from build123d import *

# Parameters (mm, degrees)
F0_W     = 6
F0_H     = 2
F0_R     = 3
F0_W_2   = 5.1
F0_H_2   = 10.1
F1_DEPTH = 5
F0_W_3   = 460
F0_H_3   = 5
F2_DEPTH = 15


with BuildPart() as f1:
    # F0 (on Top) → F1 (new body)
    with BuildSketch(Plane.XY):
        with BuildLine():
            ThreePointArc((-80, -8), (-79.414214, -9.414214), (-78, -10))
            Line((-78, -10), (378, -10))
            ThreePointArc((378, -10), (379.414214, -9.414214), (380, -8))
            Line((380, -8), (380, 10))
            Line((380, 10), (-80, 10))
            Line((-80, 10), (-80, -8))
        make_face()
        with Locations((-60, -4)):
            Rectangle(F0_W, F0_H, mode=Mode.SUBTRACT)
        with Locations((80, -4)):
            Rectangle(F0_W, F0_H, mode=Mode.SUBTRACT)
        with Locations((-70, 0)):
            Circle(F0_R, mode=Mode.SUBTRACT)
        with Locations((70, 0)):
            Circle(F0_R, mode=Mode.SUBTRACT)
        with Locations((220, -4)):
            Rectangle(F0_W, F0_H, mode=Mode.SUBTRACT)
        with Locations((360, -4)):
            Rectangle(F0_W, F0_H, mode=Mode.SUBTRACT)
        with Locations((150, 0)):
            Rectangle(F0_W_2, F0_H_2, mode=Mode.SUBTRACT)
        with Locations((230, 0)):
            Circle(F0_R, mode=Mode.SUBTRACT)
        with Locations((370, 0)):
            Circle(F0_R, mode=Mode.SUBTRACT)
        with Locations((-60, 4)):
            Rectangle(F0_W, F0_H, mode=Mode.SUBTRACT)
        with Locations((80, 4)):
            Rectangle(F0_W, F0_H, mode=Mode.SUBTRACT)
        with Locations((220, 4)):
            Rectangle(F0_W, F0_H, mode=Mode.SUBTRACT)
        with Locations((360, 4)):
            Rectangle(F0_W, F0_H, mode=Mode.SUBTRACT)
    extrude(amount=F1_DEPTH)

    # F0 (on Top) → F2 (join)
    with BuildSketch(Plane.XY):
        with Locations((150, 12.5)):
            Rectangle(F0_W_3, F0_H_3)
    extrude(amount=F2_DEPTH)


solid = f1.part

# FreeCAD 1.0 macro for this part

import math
import FreeCAD as App
import Part
import Sketcher
from FreeCAD import Vector
Q = App.Units.Quantity

doc = App.newDocument("Part")
params = doc.addObject("Spreadsheet::Sheet", "Params")
for row, (alias, value) in enumerate([
    ("sketch1_diameter", "6 mm"),
    ("sketch1_radius", "1.999999 mm"),
    ("sketch1_width", "456 mm"),
    ("sketch1_width2", "6 mm"),
    ("sketch1_height", "18 mm"),
    ("pad1_length", "5 mm"),
    ("sketch2_width", "460 mm"),
    ("sketch2_height", "5 mm"),
    ("pad2_length", "15 mm"),
], start=1):
    params.set(f"A{row}", alias)
    params.set(f"B{row}", "=" + value)
    params.setAlias(f"B{row}", alias)

body = doc.addObject("PartDesign::Body", "Body")

sketch1 = body.newObject("Sketcher::SketchObject", "Sketch")
sketch1.AttachmentSupport = (doc.getObject("XY_Plane"), [""])
sketch1.MapMode = "FlatFace"
sketch1.addGeometry(Part.ArcOfCircle(Part.Circle(Vector(-78, -8, 0), Vector(0, 0, 1), 2), math.radians(180), math.radians(270)), False)
sketch1.addGeometry(Part.LineSegment(Vector(-78, -10, 0), Vector(378, -10, 0)), False)
sketch1.addGeometry(Part.ArcOfCircle(Part.Circle(Vector(378, -8, 0), Vector(0, 0, 1), 2), math.radians(-90), math.radians(0)), False)
sketch1.addGeometry(Part.LineSegment(Vector(380, -8, 0), Vector(380, 10, 0)), False)
sketch1.addGeometry(Part.LineSegment(Vector(380, 10, 0), Vector(-80, 10, 0)), False)
sketch1.addGeometry(Part.LineSegment(Vector(-80, 10, 0), Vector(-80, -8, 0)), False)
sketch1.addGeometry(Part.LineSegment(Vector(-57, -5, 0), Vector(-63, -5, 0)), False)
sketch1.addGeometry(Part.LineSegment(Vector(-63, -5, 0), Vector(-63, -3, 0)), False)
sketch1.addGeometry(Part.LineSegment(Vector(-63, -3, 0), Vector(-57, -3, 0)), False)
sketch1.addGeometry(Part.LineSegment(Vector(-57, -3, 0), Vector(-57, -5, 0)), False)
sketch1.addGeometry(Part.LineSegment(Vector(83, -5, 0), Vector(77, -5, 0)), False)
sketch1.addGeometry(Part.LineSegment(Vector(77, -5, 0), Vector(77, -3, 0)), False)
sketch1.addGeometry(Part.LineSegment(Vector(77, -3, 0), Vector(83, -3, 0)), False)
sketch1.addGeometry(Part.LineSegment(Vector(83, -3, 0), Vector(83, -5, 0)), False)
sketch1.addGeometry(Part.LineSegment(Vector(223, -5, 0), Vector(217, -5, 0)), False)
sketch1.addGeometry(Part.LineSegment(Vector(217, -5, 0), Vector(217, -3, 0)), False)
sketch1.addGeometry(Part.LineSegment(Vector(217, -3, 0), Vector(223, -3, 0)), False)
sketch1.addGeometry(Part.LineSegment(Vector(223, -3, 0), Vector(223, -5, 0)), False)
sketch1.addGeometry(Part.LineSegment(Vector(363, -5, 0), Vector(357, -5, 0)), False)
sketch1.addGeometry(Part.LineSegment(Vector(357, -5, 0), Vector(357, -3, 0)), False)
sketch1.addGeometry(Part.LineSegment(Vector(357, -3, 0), Vector(363, -3, 0)), False)
sketch1.addGeometry(Part.LineSegment(Vector(363, -3, 0), Vector(363, -5, 0)), False)
sketch1.addGeometry(Part.Circle(Vector(-70, 0, 0), Vector(0, 0, 1), 3), False)
sketch1.addGeometry(Part.Circle(Vector(70, 0, 0), Vector(0, 0, 1), 3), False)
sketch1.addGeometry(Part.LineSegment(Vector(-57, 3, 0), Vector(-63, 3, 0)), False)
sketch1.addGeometry(Part.LineSegment(Vector(-63, 3, 0), Vector(-63, 5, 0)), False)
sketch1.addGeometry(Part.LineSegment(Vector(-63, 5, 0), Vector(-57, 5, 0)), False)
sketch1.addGeometry(Part.LineSegment(Vector(-57, 5, 0), Vector(-57, 3, 0)), False)
sketch1.addGeometry(Part.LineSegment(Vector(83, 3, 0), Vector(77, 3, 0)), False)
sketch1.addGeometry(Part.LineSegment(Vector(77, 3, 0), Vector(77, 5, 0)), False)
sketch1.addGeometry(Part.LineSegment(Vector(77, 5, 0), Vector(83, 5, 0)), False)
sketch1.addGeometry(Part.LineSegment(Vector(83, 5, 0), Vector(83, 3, 0)), False)
sketch1.addGeometry(Part.LineSegment(Vector(152.6, -5, 0), Vector(147.4, -5, 0)), False)
sketch1.addGeometry(Part.LineSegment(Vector(147.4, -5, 0), Vector(147.4, 5, 0)), False)
sketch1.addGeometry(Part.LineSegment(Vector(147.4, 5, 0), Vector(152.6, 5, 0)), False)
sketch1.addGeometry(Part.LineSegment(Vector(152.6, 5, 0), Vector(152.6, -5, 0)), False)
sketch1.addGeometry(Part.Circle(Vector(230, 0, 0), Vector(0, 0, 1), 3), False)
sketch1.addGeometry(Part.Circle(Vector(370, 0, 0), Vector(0, 0, 1), 3), False)
sketch1.addGeometry(Part.LineSegment(Vector(223, 3, 0), Vector(217, 3, 0)), False)
sketch1.addGeometry(Part.LineSegment(Vector(217, 3, 0), Vector(217, 5, 0)), False)
sketch1.addGeometry(Part.LineSegment(Vector(217, 5, 0), Vector(223, 5, 0)), False)
sketch1.addGeometry(Part.LineSegment(Vector(223, 5, 0), Vector(223, 3, 0)), False)
sketch1.addGeometry(Part.LineSegment(Vector(363, 3, 0), Vector(357, 3, 0)), False)
sketch1.addGeometry(Part.LineSegment(Vector(357, 3, 0), Vector(357, 5, 0)), False)
sketch1.addGeometry(Part.LineSegment(Vector(357, 5, 0), Vector(363, 5, 0)), False)
sketch1.addGeometry(Part.LineSegment(Vector(363, 5, 0), Vector(363, 3, 0)), False)
sketch1.addConstraint(Sketcher.Constraint("Tangent", 0, 2, 1, 1))
sketch1.addConstraint(Sketcher.Constraint("Tangent", 1, 2, 2, 1))
sketch1.addConstraint(Sketcher.Constraint("Tangent", 2, 2, 3, 1))
sketch1.addConstraint(Sketcher.Constraint("Coincident", 3, 2, 4, 1))
sketch1.addConstraint(Sketcher.Constraint("Coincident", 4, 2, 5, 1))
sketch1.addConstraint(Sketcher.Constraint("Tangent", 5, 2, 0, 1))
sketch1.addConstraint(Sketcher.Constraint("Coincident", 6, 2, 7, 1))
sketch1.addConstraint(Sketcher.Constraint("Coincident", 7, 2, 8, 1))
sketch1.addConstraint(Sketcher.Constraint("Coincident", 8, 2, 9, 1))
sketch1.addConstraint(Sketcher.Constraint("Coincident", 9, 2, 6, 1))
sketch1.addConstraint(Sketcher.Constraint("Coincident", 10, 2, 11, 1))
sketch1.addConstraint(Sketcher.Constraint("Coincident", 11, 2, 12, 1))
sketch1.addConstraint(Sketcher.Constraint("Coincident", 12, 2, 13, 1))
sketch1.addConstraint(Sketcher.Constraint("Coincident", 13, 2, 10, 1))
sketch1.addConstraint(Sketcher.Constraint("Coincident", 14, 2, 15, 1))
sketch1.addConstraint(Sketcher.Constraint("Coincident", 15, 2, 16, 1))
sketch1.addConstraint(Sketcher.Constraint("Coincident", 16, 2, 17, 1))
sketch1.addConstraint(Sketcher.Constraint("Coincident", 17, 2, 14, 1))
sketch1.addConstraint(Sketcher.Constraint("Coincident", 18, 2, 19, 1))
sketch1.addConstraint(Sketcher.Constraint("Coincident", 19, 2, 20, 1))
sketch1.addConstraint(Sketcher.Constraint("Coincident", 20, 2, 21, 1))
sketch1.addConstraint(Sketcher.Constraint("Coincident", 21, 2, 18, 1))
sketch1.addConstraint(Sketcher.Constraint("Coincident", 24, 2, 25, 1))
sketch1.addConstraint(Sketcher.Constraint("Coincident", 25, 2, 26, 1))
sketch1.addConstraint(Sketcher.Constraint("Coincident", 26, 2, 27, 1))
sketch1.addConstraint(Sketcher.Constraint("Coincident", 27, 2, 24, 1))
sketch1.addConstraint(Sketcher.Constraint("Coincident", 28, 2, 29, 1))
sketch1.addConstraint(Sketcher.Constraint("Coincident", 29, 2, 30, 1))
sketch1.addConstraint(Sketcher.Constraint("Coincident", 30, 2, 31, 1))
sketch1.addConstraint(Sketcher.Constraint("Coincident", 31, 2, 28, 1))
sketch1.addConstraint(Sketcher.Constraint("Coincident", 32, 2, 33, 1))
sketch1.addConstraint(Sketcher.Constraint("Coincident", 33, 2, 34, 1))
sketch1.addConstraint(Sketcher.Constraint("Coincident", 34, 2, 35, 1))
sketch1.addConstraint(Sketcher.Constraint("Coincident", 35, 2, 32, 1))
sketch1.addConstraint(Sketcher.Constraint("Coincident", 38, 2, 39, 1))
sketch1.addConstraint(Sketcher.Constraint("Coincident", 39, 2, 40, 1))
sketch1.addConstraint(Sketcher.Constraint("Coincident", 40, 2, 41, 1))
sketch1.addConstraint(Sketcher.Constraint("Coincident", 41, 2, 38, 1))
sketch1.addConstraint(Sketcher.Constraint("Coincident", 42, 2, 43, 1))
sketch1.addConstraint(Sketcher.Constraint("Coincident", 43, 2, 44, 1))
sketch1.addConstraint(Sketcher.Constraint("Coincident", 44, 2, 45, 1))
sketch1.addConstraint(Sketcher.Constraint("Coincident", 45, 2, 42, 1))
sketch1.addConstraint(Sketcher.Constraint("Horizontal", 1))
sketch1.addConstraint(Sketcher.Constraint("Vertical", 3))
sketch1.addConstraint(Sketcher.Constraint("Horizontal", 4))
sketch1.addConstraint(Sketcher.Constraint("Vertical", 5))
sketch1.addConstraint(Sketcher.Constraint("Horizontal", 6))
sketch1.addConstraint(Sketcher.Constraint("Vertical", 7))
sketch1.addConstraint(Sketcher.Constraint("Horizontal", 8))
sketch1.addConstraint(Sketcher.Constraint("Vertical", 9))
sketch1.addConstraint(Sketcher.Constraint("Horizontal", 10))
sketch1.addConstraint(Sketcher.Constraint("Vertical", 11))
sketch1.addConstraint(Sketcher.Constraint("Horizontal", 12))
sketch1.addConstraint(Sketcher.Constraint("Vertical", 13))
sketch1.addConstraint(Sketcher.Constraint("Horizontal", 14))
sketch1.addConstraint(Sketcher.Constraint("Vertical", 15))
sketch1.addConstraint(Sketcher.Constraint("Horizontal", 16))
sketch1.addConstraint(Sketcher.Constraint("Vertical", 17))
sketch1.addConstraint(Sketcher.Constraint("Horizontal", 18))
sketch1.addConstraint(Sketcher.Constraint("Vertical", 19))
sketch1.addConstraint(Sketcher.Constraint("Horizontal", 20))
sketch1.addConstraint(Sketcher.Constraint("Vertical", 21))
sketch1.addConstraint(Sketcher.Constraint("Horizontal", 24))
sketch1.addConstraint(Sketcher.Constraint("Vertical", 25))
sketch1.addConstraint(Sketcher.Constraint("Horizontal", 26))
sketch1.addConstraint(Sketcher.Constraint("Vertical", 27))
sketch1.addConstraint(Sketcher.Constraint("Horizontal", 28))
sketch1.addConstraint(Sketcher.Constraint("Vertical", 29))
sketch1.addConstraint(Sketcher.Constraint("Horizontal", 30))
sketch1.addConstraint(Sketcher.Constraint("Vertical", 31))
sketch1.addConstraint(Sketcher.Constraint("Horizontal", 32))
sketch1.addConstraint(Sketcher.Constraint("Vertical", 33))
sketch1.addConstraint(Sketcher.Constraint("Horizontal", 34))
sketch1.addConstraint(Sketcher.Constraint("Vertical", 35))
sketch1.addConstraint(Sketcher.Constraint("Horizontal", 38))
sketch1.addConstraint(Sketcher.Constraint("Vertical", 39))
sketch1.addConstraint(Sketcher.Constraint("Horizontal", 40))
sketch1.addConstraint(Sketcher.Constraint("Vertical", 41))
sketch1.addConstraint(Sketcher.Constraint("Horizontal", 42))
sketch1.addConstraint(Sketcher.Constraint("Vertical", 43))
sketch1.addConstraint(Sketcher.Constraint("Horizontal", 44))
sketch1.addConstraint(Sketcher.Constraint("Vertical", 45))
sketch1.addConstraint(Sketcher.Constraint("Equal", 0, 2))
sketch1.addConstraint(Sketcher.Constraint("Equal", 22, 23))
sketch1.addConstraint(Sketcher.Constraint("Equal", 23, 36))
sketch1.addConstraint(Sketcher.Constraint("Equal", 36, 37))
sketch1.addConstraint(Sketcher.Constraint("Symmetric", 22, 3, 23, 3, -1, 1))
sketch1.addConstraint(Sketcher.Constraint("Symmetric", 7, 2, 24, 2, -1))
sketch1.addConstraint(Sketcher.Constraint("Symmetric", 9, 2, 26, 2, -1))
sketch1.addConstraint(Sketcher.Constraint("Symmetric", 11, 2, 28, 2, -1))
sketch1.addConstraint(Sketcher.Constraint("Symmetric", 13, 2, 30, 2, -1))
sketch1.addConstraint(Sketcher.Constraint("Symmetric", 15, 2, 38, 2, -1))
sketch1.addConstraint(Sketcher.Constraint("Symmetric", 17, 2, 40, 2, -1))
sketch1.addConstraint(Sketcher.Constraint("Symmetric", 19, 2, 42, 2, -1))
sketch1.addConstraint(Sketcher.Constraint("Symmetric", 21, 2, 44, 2, -1))
sketch1.addConstraint(Sketcher.Constraint("PointOnObject", 22, 3, -1))
sketch1.addConstraint(Sketcher.Constraint("PointOnObject", 36, 3, -1))
sketch1.addConstraint(Sketcher.Constraint("PointOnObject", 37, 3, -1))
sketch1.addConstraint(Sketcher.Constraint("Horizontal", 9, 2, 10, 2))
sketch1.addConstraint(Sketcher.Constraint("Horizontal", 8, 2, 11, 2))
sketch1.addConstraint(Sketcher.Constraint("Horizontal", 13, 2, 14, 2))
sketch1.addConstraint(Sketcher.Constraint("Horizontal", 12, 2, 15, 2))
sketch1.addConstraint(Sketcher.Constraint("Horizontal", 17, 2, 18, 2))
sketch1.addConstraint(Sketcher.Constraint("Horizontal", 16, 2, 19, 2))
sketch1.addConstraint(Sketcher.Constraint("Equal", 8, 10))
sketch1.addConstraint(Sketcher.Constraint("Equal", 12, 14))
sketch1.addConstraint(Sketcher.Constraint("Equal", 16, 18))
sketch1.addConstraint(Sketcher.Constraint("Diameter", 22, Q("6 mm")))
sketch1.addConstraint(Sketcher.Constraint("Radius", 0, Q("1.999999 mm")))
sketch1.addConstraint(Sketcher.Constraint("DistanceX", 1, 1, 1, 2, Q("456 mm")))
sketch1.addConstraint(Sketcher.Constraint("DistanceX", 6, 2, 6, 1, Q("6 mm")))
sketch1.addConstraint(Sketcher.Constraint("DistanceY", 3, 1, 3, 2, Q("18 mm")))
sketch1.addConstraint(Sketcher.Constraint("DistanceY", 7, 1, 7, 2, Q("2 mm")))
sketch1.addConstraint(Sketcher.Constraint("DistanceX", 32, 2, 32, 1, Q("5.1 mm")))
sketch1.addConstraint(Sketcher.Constraint("DistanceY", 33, 1, 33, 2, Q("10.1 mm")))
sketch1.addConstraint(Sketcher.Constraint("DistanceX", 0, 3, -1, 1, Q("78.000001 mm")))
sketch1.addConstraint(Sketcher.Constraint("DistanceY", 0, 3, -1, 1, Q("8.000001 mm")))
sketch1.addConstraint(Sketcher.Constraint("DistanceX", 22, 3, -1, 1, Q("70 mm")))
sketch1.addConstraint(Sketcher.Constraint("DistanceX", -1, 1, 36, 3, Q("230 mm")))
sketch1.addConstraint(Sketcher.Constraint("DistanceX", -1, 1, 37, 3, Q("370 mm")))
sketch1.addConstraint(Sketcher.Constraint("DistanceX", 6, 2, -1, 1, Q("63 mm")))
sketch1.addConstraint(Sketcher.Constraint("DistanceY", 6, 2, -1, 1, Q("5 mm")))
sketch1.addConstraint(Sketcher.Constraint("DistanceX", -1, 1, 10, 2, Q("77 mm")))
sketch1.addConstraint(Sketcher.Constraint("DistanceX", -1, 1, 14, 2, Q("217 mm")))
sketch1.addConstraint(Sketcher.Constraint("DistanceX", -1, 1, 18, 2, Q("357 mm")))
sketch1.addConstraint(Sketcher.Constraint("DistanceX", -1, 1, 32, 2, Q("147.45 mm")))
sketch1.addConstraint(Sketcher.Constraint("DistanceY", 32, 2, -1, 1, Q("5.05 mm")))
sketch1.setExpression("Constraints[107]", "Params.sketch1_diameter")
sketch1.setExpression("Constraints[108]", "Params.sketch1_radius")
sketch1.setExpression("Constraints[109]", "Params.sketch1_width")
sketch1.setExpression("Constraints[110]", "Params.sketch1_width2")
sketch1.setExpression("Constraints[111]", "Params.sketch1_height")
pad1 = body.newObject("PartDesign::Pad", "Pad")
pad1.Profile = sketch1
pad1.setExpression("Length", "Params.pad1_length")

sketch2 = body.newObject("Sketcher::SketchObject", "Sketch001")
sketch2.AttachmentSupport = (doc.getObject("XY_Plane"), [""])
sketch2.MapMode = "FlatFace"
sketch2.addGeometry(Part.LineSegment(Vector(-80, 15, 0), Vector(-80, 10, 0)), False)
sketch2.addGeometry(Part.LineSegment(Vector(-80, 10, 0), Vector(380, 10, 0)), False)
sketch2.addGeometry(Part.LineSegment(Vector(380, 10, 0), Vector(380, 15, 0)), False)
sketch2.addGeometry(Part.LineSegment(Vector(380, 15, 0), Vector(-80, 15, 0)), False)
sketch2.addConstraint(Sketcher.Constraint("Coincident", 0, 2, 1, 1))
sketch2.addConstraint(Sketcher.Constraint("Coincident", 1, 2, 2, 1))
sketch2.addConstraint(Sketcher.Constraint("Coincident", 2, 2, 3, 1))
sketch2.addConstraint(Sketcher.Constraint("Coincident", 3, 2, 0, 1))
sketch2.addConstraint(Sketcher.Constraint("Vertical", 0))
sketch2.addConstraint(Sketcher.Constraint("Horizontal", 1))
sketch2.addConstraint(Sketcher.Constraint("Vertical", 2))
sketch2.addConstraint(Sketcher.Constraint("Horizontal", 3))
sketch2.addConstraint(Sketcher.Constraint("DistanceX", 1, 1, 1, 2, Q("460 mm")))
sketch2.addConstraint(Sketcher.Constraint("DistanceY", 0, 2, 0, 1, Q("5 mm")))
sketch2.addConstraint(Sketcher.Constraint("DistanceX", 0, 2, -1, 1, Q("80 mm")))
sketch2.addConstraint(Sketcher.Constraint("DistanceY", -1, 1, 0, 2, Q("10 mm")))
sketch2.setExpression("Constraints[8]", "Params.sketch2_width")
sketch2.setExpression("Constraints[9]", "Params.sketch2_height")
pad2 = body.newObject("PartDesign::Pad", "Pad001")
pad2.Profile = sketch2
pad2.setExpression("Length", "Params.pad2_length")

doc.recompute()
